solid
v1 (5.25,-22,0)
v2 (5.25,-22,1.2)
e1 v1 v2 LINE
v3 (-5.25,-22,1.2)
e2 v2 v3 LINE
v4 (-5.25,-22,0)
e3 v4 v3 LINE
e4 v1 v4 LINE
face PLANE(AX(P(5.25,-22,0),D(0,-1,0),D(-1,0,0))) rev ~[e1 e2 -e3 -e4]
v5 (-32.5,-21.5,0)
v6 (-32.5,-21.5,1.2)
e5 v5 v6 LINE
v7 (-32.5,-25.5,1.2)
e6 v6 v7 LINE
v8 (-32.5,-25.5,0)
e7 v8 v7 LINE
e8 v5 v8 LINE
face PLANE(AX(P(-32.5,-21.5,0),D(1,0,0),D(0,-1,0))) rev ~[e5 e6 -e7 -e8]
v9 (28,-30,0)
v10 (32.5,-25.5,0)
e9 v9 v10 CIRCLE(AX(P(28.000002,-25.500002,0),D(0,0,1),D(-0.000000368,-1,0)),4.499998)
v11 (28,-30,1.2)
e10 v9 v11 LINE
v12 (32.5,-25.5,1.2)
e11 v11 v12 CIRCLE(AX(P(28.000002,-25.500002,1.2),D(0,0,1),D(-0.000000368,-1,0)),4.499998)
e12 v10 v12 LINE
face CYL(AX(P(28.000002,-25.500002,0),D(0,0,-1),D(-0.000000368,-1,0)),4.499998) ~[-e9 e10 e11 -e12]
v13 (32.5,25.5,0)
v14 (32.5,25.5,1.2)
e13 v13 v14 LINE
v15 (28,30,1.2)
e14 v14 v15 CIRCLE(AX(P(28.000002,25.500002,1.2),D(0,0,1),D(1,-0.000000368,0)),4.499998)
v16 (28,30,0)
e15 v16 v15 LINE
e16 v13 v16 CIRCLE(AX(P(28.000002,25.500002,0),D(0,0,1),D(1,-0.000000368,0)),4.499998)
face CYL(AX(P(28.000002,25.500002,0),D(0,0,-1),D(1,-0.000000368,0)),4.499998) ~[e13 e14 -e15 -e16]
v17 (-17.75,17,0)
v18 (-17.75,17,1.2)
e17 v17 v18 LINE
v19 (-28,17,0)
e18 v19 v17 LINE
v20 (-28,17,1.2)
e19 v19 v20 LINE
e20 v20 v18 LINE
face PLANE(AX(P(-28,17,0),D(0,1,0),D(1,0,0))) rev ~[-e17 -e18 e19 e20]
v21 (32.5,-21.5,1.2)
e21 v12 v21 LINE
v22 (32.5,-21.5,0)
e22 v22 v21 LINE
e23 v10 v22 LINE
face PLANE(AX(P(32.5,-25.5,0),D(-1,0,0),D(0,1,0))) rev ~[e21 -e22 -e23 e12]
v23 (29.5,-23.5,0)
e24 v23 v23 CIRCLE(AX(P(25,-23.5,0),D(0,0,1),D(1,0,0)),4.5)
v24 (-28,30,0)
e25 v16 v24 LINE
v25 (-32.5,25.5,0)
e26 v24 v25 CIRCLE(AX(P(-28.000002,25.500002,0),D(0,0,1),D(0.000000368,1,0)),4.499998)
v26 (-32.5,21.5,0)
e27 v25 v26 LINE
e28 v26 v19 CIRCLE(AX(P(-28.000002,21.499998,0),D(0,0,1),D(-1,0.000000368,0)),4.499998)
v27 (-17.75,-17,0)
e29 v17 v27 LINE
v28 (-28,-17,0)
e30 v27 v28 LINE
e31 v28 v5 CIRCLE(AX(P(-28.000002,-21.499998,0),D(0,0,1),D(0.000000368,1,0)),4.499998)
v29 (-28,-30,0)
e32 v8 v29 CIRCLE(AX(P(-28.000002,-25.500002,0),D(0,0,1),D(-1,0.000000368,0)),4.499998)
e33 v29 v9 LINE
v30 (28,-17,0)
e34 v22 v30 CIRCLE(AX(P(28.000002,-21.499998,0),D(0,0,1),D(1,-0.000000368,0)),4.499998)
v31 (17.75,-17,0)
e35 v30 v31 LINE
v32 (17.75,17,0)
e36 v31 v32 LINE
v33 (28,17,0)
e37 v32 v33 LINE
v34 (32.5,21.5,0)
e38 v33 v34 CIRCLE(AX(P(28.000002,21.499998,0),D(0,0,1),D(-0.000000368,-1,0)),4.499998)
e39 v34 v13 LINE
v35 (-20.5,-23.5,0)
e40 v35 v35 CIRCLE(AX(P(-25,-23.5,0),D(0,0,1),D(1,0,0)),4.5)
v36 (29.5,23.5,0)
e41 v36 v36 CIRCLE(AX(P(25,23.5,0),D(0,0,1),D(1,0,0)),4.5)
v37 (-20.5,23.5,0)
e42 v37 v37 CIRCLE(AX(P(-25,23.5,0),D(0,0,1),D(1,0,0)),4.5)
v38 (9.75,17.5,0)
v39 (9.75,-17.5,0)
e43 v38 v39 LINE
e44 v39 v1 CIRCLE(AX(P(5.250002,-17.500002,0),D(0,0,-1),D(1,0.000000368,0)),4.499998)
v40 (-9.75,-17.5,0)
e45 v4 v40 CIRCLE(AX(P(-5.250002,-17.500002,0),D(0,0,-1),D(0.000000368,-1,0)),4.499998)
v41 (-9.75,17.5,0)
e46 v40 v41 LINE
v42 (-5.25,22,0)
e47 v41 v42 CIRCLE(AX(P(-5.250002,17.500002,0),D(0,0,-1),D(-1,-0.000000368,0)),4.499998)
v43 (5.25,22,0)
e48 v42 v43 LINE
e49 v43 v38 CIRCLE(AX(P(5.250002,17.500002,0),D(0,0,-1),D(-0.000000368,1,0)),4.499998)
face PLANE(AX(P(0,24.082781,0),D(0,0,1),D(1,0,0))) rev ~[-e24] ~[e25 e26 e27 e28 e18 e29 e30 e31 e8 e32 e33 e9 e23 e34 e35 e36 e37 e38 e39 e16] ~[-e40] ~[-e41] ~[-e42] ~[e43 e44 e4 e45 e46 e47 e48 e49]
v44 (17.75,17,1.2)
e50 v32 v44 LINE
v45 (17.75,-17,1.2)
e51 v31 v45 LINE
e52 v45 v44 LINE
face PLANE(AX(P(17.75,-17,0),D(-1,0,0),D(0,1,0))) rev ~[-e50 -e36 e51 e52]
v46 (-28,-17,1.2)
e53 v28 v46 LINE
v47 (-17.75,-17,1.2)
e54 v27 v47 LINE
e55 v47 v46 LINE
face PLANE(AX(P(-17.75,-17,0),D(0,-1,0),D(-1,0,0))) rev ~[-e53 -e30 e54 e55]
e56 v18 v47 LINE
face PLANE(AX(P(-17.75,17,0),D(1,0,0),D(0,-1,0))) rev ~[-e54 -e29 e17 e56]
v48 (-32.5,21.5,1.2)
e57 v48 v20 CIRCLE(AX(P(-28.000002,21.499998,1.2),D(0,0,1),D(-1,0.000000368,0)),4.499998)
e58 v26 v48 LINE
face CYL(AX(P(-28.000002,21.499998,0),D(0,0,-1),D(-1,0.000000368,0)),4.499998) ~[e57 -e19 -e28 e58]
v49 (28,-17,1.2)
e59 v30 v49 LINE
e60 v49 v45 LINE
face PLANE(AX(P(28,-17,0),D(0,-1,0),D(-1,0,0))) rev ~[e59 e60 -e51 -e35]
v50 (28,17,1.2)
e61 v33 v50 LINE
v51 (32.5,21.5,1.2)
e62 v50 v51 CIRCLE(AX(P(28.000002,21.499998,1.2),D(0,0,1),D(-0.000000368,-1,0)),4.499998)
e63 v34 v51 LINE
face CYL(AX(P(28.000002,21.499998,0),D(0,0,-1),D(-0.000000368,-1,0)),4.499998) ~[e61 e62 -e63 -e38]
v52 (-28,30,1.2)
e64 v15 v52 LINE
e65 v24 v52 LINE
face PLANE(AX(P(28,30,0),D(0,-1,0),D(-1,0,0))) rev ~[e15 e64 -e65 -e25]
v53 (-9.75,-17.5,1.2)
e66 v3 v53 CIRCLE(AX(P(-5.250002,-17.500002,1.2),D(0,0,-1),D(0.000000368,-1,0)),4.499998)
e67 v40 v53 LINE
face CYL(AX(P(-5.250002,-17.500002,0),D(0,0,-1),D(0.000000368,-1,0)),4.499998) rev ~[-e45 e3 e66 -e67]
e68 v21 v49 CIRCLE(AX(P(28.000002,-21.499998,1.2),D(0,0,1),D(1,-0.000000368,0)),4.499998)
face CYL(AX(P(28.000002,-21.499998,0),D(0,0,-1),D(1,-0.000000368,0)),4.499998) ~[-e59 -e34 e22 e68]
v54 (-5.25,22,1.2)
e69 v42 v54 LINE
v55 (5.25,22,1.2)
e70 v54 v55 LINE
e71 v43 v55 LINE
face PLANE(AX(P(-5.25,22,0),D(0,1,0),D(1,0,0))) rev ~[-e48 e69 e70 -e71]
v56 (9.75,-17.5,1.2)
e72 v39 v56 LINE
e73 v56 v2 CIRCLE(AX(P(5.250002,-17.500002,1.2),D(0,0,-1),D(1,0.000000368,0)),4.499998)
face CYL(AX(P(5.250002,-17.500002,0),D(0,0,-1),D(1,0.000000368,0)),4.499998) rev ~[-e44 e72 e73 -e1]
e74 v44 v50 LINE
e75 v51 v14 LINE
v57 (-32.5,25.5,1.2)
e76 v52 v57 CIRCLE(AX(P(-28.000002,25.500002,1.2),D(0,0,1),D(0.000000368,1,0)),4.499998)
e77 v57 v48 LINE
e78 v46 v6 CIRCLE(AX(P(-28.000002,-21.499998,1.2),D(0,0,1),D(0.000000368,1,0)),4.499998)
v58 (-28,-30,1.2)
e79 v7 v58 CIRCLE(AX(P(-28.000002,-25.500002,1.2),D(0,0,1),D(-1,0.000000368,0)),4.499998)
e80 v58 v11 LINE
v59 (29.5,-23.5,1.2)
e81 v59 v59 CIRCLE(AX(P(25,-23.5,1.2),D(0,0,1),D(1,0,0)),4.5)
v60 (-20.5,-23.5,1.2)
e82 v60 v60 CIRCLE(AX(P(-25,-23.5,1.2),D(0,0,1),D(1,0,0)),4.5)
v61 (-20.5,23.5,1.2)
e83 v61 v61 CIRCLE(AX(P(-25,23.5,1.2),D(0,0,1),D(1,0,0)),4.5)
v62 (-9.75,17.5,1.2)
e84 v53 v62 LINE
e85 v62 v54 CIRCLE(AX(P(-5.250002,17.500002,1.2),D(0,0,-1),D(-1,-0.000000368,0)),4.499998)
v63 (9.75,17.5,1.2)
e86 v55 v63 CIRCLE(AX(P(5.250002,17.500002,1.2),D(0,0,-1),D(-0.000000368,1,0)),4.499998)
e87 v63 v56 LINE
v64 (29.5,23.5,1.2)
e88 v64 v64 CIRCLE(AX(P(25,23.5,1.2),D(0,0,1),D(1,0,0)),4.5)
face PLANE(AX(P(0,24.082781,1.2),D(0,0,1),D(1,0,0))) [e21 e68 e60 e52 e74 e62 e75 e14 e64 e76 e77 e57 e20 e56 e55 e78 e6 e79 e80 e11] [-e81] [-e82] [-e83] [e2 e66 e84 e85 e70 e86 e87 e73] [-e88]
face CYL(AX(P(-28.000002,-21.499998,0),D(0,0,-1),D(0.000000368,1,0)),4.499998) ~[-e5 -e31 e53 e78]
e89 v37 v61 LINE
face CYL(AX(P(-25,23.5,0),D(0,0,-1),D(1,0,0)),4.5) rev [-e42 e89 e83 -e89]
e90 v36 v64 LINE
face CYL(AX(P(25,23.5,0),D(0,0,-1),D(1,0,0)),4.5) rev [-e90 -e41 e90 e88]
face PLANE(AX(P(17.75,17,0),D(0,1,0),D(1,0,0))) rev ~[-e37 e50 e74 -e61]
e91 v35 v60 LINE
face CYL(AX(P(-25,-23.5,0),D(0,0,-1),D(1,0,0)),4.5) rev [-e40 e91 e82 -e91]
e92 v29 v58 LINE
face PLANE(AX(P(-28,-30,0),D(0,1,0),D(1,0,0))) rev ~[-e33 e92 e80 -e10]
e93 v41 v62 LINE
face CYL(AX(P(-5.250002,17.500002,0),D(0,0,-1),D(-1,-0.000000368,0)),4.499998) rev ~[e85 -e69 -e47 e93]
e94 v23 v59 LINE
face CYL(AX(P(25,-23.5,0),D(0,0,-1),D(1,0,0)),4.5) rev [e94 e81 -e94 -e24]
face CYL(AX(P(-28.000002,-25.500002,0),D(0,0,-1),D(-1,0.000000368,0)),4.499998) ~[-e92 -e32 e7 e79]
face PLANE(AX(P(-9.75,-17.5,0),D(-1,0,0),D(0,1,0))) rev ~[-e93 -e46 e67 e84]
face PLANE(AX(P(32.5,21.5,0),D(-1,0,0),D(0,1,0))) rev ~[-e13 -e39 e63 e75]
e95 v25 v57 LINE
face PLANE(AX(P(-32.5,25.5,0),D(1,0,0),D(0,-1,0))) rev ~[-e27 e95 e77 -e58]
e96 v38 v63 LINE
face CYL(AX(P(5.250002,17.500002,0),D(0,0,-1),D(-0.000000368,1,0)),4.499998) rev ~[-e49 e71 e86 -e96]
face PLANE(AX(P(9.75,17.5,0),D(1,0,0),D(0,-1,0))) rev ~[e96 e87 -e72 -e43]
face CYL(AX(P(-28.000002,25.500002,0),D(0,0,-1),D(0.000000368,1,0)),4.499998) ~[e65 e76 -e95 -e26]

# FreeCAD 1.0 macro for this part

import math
import FreeCAD as App
import Part
import Sketcher
from FreeCAD import Vector
Q = App.Units.Quantity

doc = App.newDocument("Part")
body = doc.addObject("PartDesign::Body", "Body")

# Sketch on XY plane
sketch1 = body.newObject("Sketcher::SketchObject", "Sketch")
sketch1.AttachmentSupport = (doc.getObject("XY_Plane"), [""])
sketch1.MapMode = "FlatFace"
sketch1.addGeometry([
    Part.LineSegment(Vector(28, 30, 0), Vector(-28, 30, 0)),  # 0
    Part.ArcOfCircle(Part.Circle(Vector(-28, 25.5, 0), Vector(0, 0, 1), 4.5), math.radians(90), math.radians(180)),  # 1
    Part.LineSegment(Vector(-32.5, 25.5, 0), Vector(-32.5, 21.5, 0)),  # 2
    Part.ArcOfCircle(Part.Circle(Vector(-28, 21.5, 0), Vector(0, 0, 1), 4.5), math.radians(180), math.radians(270)),  # 3
    Part.LineSegment(Vector(-28, 17, 0), Vector(-17.8, 17, 0)),  # 4
    Part.LineSegment(Vector(-17.8, 17, 0), Vector(-17.8, -17, 0)),  # 5
    Part.LineSegment(Vector(-17.8, -17, 0), Vector(-28, -17, 0)),  # 6
    Part.ArcOfCircle(Part.Circle(Vector(-28, -21.5, 0), Vector(0, 0, 1), 4.5), math.radians(90), math.radians(180)),  # 7
    Part.LineSegment(Vector(-32.5, -21.5, 0), Vector(-32.5, -25.5, 0)),  # 8
    Part.ArcOfCircle(Part.Circle(Vector(-28, -25.5, 0), Vector(0, 0, 1), 4.5), math.radians(180), math.radians(270)),  # 9
    Part.LineSegment(Vector(-28, -30, 0), Vector(28, -30, 0)),  # 10
    Part.ArcOfCircle(Part.Circle(Vector(28, -25.5, 0), Vector(0, 0, 1), 4.5), math.radians(-90), math.radians(0)),  # 11
    Part.LineSegment(Vector(32.5, -25.5, 0), Vector(32.5, -21.5, 0)),  # 12
    Part.ArcOfCircle(Part.Circle(Vector(28, -21.5, 0), Vector(0, 0, 1), 4.5), math.radians(0), math.radians(90)),  # 13
    Part.LineSegment(Vector(28, -17, 0), Vector(17.8, -17, 0)),  # 14
    Part.LineSegment(Vector(17.8, -17, 0), Vector(17.8, 17, 0)),  # 15
    Part.LineSegment(Vector(17.8, 17, 0), Vector(28, 17, 0)),  # 16
    Part.ArcOfCircle(Part.Circle(Vector(28, 21.5, 0), Vector(0, 0, 1), 4.5), math.radians(-90), math.radians(0)),  # 17
    Part.LineSegment(Vector(32.5, 21.5, 0), Vector(32.5, 25.5, 0)),  # 18
    Part.ArcOfCircle(Part.Circle(Vector(28, 25.5, 0), Vector(0, 0, 1), 4.5), math.radians(0), math.radians(90)),  # 19
    Part.Circle(Vector(-25, -23.5, 0), Vector(0, 0, 1), 4.5),  # 20
    Part.Circle(Vector(25, -23.5, 0), Vector(0, 0, 1), 4.5),  # 21
    Part.ArcOfCircle(Part.Circle(Vector(-5.3, 17.5, 0), Vector(0, 0, 1), 4.5), math.radians(90), math.radians(180)),  # 22
    Part.LineSegment(Vector(-5.2, 22, 0), Vector(5.2, 22, 0)),  # 23
    Part.ArcOfCircle(Part.Circle(Vector(5.3, 17.5, 0), Vector(0, 0, 1), 4.5), math.radians(0), math.radians(90)),  # 24
    Part.LineSegment(Vector(9.8, 17.5, 0), Vector(9.8, -17.5, 0)),  # 25
    Part.ArcOfCircle(Part.Circle(Vector(5.3, -17.5, 0), Vector(0, 0, 1), 4.5), math.radians(-90), math.radians(0)),  # 26
    Part.LineSegment(Vector(5.2, -22, 0), Vector(-5.2, -22, 0)),  # 27
    Part.ArcOfCircle(Part.Circle(Vector(-5.3, -17.5, 0), Vector(0, 0, 1), 4.5), math.radians(180), math.radians(270)),  # 28
    Part.LineSegment(Vector(-9.8, -17.5, 0), Vector(-9.8, 17.5, 0)),  # 29
    Part.Circle(Vector(-25, 23.5, 0), Vector(0, 0, 1), 4.5),  # 30
    Part.Circle(Vector(25, 23.5, 0), Vector(0, 0, 1), 4.5),  # 31
], False)
sketch1.addConstraint([
    Sketcher.Constraint("Tangent", 0, 2, 1, 1),
    Sketcher.Constraint("Tangent", 1, 2, 2, 1),
    Sketcher.Constraint("Tangent", 2, 2, 3, 1),
    Sketcher.Constraint("Tangent", 3, 2, 4, 1),
    Sketcher.Constraint("Coincident", 4, 2, 5, 1),
    Sketcher.Constraint("Coincident", 5, 2, 6, 1),
    Sketcher.Constraint("Tangent", 6, 2, 7, 1),
    Sketcher.Constraint("Tangent", 7, 2, 8, 1),
    Sketcher.Constraint("Tangent", 8, 2, 9, 1),
    Sketcher.Constraint("Tangent", 9, 2, 10, 1),
    Sketcher.Constraint("Tangent", 10, 2, 11, 1),
    Sketcher.Constraint("Tangent", 11, 2, 12, 1),
    Sketcher.Constraint("Tangent", 12, 2, 13, 1),
    Sketcher.Constraint("Tangent", 13, 2, 14, 1),
    Sketcher.Constraint("Coincident", 14, 2, 15, 1),
    Sketcher.Constraint("Coincident", 15, 2, 16, 1),
    Sketcher.Constraint("Tangent", 16, 2, 17, 1),
    Sketcher.Constraint("Tangent", 17, 2, 18, 1),
    Sketcher.Constraint("Tangent", 18, 2, 19, 1),
    Sketcher.Constraint("Tangent", 19, 2, 0, 1),
    Sketcher.Constraint("Tangent", 22, 1, 23, 1),
    Sketcher.Constraint("Tangent", 23, 2, 24, 2),
    Sketcher.Constraint("Tangent", 24, 1, 25, 1),
    Sketcher.Constraint("Tangent", 25, 2, 26, 2),
    Sketcher.Constraint("Tangent", 26, 1, 27, 1),
    Sketcher.Constraint("Tangent", 27, 2, 28, 2),
    Sketcher.Constraint("Tangent", 28, 1, 29, 1),
    Sketcher.Constraint("Tangent", 29, 2, 22, 2),
    Sketcher.Constraint("Horizontal", 0),
    Sketcher.Constraint("Vertical", 2),
    Sketcher.Constraint("Horizontal", 4),
    Sketcher.Constraint("Vertical", 5),
    Sketcher.Constraint("Horizontal", 6),
    Sketcher.Constraint("Vertical", 8),
    Sketcher.Constraint("Horizontal", 10),
    Sketcher.Constraint("Vertical", 12),
    Sketcher.Constraint("Horizontal", 14),
    Sketcher.Constraint("Vertical", 15),
    Sketcher.Constraint("Horizontal", 16),
    Sketcher.Constraint("Vertical", 18),
    Sketcher.Constraint("Horizontal", 23),
    Sketcher.Constraint("Vertical", 25),
    Sketcher.Constraint("Horizontal", 27),
    Sketcher.Constraint("Vertical", 29),
    Sketcher.Constraint("Equal", 1, 3),
    Sketcher.Constraint("Equal", 3, 7),
    Sketcher.Constraint("Equal", 7, 9),
    Sketcher.Constraint("Equal", 9, 11),
    Sketcher.Constraint("Equal", 11, 13),
    Sketcher.Constraint("Equal", 13, 17),
    Sketcher.Constraint("Equal", 17, 19),
    Sketcher.Constraint("Equal", 19, 20),
    Sketcher.Constraint("Equal", 20, 21),
    Sketcher.Constraint("Equal", 21, 22),
    Sketcher.Constraint("Equal", 22, 24),
    Sketcher.Constraint("Equal", 24, 26),
    Sketcher.Constraint("Equal", 26, 28),
    Sketcher.Constraint("Equal", 28, 30),
    Sketcher.Constraint("Equal", 30, 31),
    Sketcher.Constraint("Symmetric", 1, 3, 11, 3, -1, 1),
    Sketcher.Constraint("Symmetric", 7, 3, 17, 3, -1, 1),
    Sketcher.Constraint("Symmetric", 22, 3, 26, 3, -1, 1),
    Sketcher.Constraint("Symmetric", 21, 3, 30, 3, -1, 1),
    Sketcher.Constraint("Symmetric", 20, 3, 31, 3, -1, 1),
    Sketcher.Constraint("Symmetric", 4, 2, 14, 2, -1, 1),
    Sketcher.Constraint("Symmetric", 7, 3, 13, 3, -2),
    Sketcher.Constraint("Symmetric", 20, 3, 21, 3, -2),
    Sketcher.Constraint("Diameter", 20, Q("9 mm")),
    Sketcher.Constraint("DistanceX", 0, 2, 0, 1, Q("56 mm")),
    Sketcher.Constraint("DistanceY", 2, 2, 2, 1, Q("4 mm")),
    Sketcher.Constraint("DistanceY", 5, 2, 5, 1, Q("34 mm")),
    Sketcher.Constraint("DistanceY", 25, 2, 25, 1, Q("35 mm")),
    Sketcher.Constraint("DistanceX", 23, 1, 23, 2, Q("10.5 mm")),
    Sketcher.Constraint("DistanceX", 20, 3, -1, 1, Q("25 mm")),
    Sketcher.Constraint("DistanceY", 20, 3, 7, 3, Q("2.000002 mm")),
    Sketcher.Constraint("DistanceX", 5, 2, 26, 3, Q("23.000002 mm")),
])
pad1 = body.newObject("PartDesign::Pad", "Pad")
pad1.Profile = sketch1
pad1.Length = 1.2

doc.recompute()
